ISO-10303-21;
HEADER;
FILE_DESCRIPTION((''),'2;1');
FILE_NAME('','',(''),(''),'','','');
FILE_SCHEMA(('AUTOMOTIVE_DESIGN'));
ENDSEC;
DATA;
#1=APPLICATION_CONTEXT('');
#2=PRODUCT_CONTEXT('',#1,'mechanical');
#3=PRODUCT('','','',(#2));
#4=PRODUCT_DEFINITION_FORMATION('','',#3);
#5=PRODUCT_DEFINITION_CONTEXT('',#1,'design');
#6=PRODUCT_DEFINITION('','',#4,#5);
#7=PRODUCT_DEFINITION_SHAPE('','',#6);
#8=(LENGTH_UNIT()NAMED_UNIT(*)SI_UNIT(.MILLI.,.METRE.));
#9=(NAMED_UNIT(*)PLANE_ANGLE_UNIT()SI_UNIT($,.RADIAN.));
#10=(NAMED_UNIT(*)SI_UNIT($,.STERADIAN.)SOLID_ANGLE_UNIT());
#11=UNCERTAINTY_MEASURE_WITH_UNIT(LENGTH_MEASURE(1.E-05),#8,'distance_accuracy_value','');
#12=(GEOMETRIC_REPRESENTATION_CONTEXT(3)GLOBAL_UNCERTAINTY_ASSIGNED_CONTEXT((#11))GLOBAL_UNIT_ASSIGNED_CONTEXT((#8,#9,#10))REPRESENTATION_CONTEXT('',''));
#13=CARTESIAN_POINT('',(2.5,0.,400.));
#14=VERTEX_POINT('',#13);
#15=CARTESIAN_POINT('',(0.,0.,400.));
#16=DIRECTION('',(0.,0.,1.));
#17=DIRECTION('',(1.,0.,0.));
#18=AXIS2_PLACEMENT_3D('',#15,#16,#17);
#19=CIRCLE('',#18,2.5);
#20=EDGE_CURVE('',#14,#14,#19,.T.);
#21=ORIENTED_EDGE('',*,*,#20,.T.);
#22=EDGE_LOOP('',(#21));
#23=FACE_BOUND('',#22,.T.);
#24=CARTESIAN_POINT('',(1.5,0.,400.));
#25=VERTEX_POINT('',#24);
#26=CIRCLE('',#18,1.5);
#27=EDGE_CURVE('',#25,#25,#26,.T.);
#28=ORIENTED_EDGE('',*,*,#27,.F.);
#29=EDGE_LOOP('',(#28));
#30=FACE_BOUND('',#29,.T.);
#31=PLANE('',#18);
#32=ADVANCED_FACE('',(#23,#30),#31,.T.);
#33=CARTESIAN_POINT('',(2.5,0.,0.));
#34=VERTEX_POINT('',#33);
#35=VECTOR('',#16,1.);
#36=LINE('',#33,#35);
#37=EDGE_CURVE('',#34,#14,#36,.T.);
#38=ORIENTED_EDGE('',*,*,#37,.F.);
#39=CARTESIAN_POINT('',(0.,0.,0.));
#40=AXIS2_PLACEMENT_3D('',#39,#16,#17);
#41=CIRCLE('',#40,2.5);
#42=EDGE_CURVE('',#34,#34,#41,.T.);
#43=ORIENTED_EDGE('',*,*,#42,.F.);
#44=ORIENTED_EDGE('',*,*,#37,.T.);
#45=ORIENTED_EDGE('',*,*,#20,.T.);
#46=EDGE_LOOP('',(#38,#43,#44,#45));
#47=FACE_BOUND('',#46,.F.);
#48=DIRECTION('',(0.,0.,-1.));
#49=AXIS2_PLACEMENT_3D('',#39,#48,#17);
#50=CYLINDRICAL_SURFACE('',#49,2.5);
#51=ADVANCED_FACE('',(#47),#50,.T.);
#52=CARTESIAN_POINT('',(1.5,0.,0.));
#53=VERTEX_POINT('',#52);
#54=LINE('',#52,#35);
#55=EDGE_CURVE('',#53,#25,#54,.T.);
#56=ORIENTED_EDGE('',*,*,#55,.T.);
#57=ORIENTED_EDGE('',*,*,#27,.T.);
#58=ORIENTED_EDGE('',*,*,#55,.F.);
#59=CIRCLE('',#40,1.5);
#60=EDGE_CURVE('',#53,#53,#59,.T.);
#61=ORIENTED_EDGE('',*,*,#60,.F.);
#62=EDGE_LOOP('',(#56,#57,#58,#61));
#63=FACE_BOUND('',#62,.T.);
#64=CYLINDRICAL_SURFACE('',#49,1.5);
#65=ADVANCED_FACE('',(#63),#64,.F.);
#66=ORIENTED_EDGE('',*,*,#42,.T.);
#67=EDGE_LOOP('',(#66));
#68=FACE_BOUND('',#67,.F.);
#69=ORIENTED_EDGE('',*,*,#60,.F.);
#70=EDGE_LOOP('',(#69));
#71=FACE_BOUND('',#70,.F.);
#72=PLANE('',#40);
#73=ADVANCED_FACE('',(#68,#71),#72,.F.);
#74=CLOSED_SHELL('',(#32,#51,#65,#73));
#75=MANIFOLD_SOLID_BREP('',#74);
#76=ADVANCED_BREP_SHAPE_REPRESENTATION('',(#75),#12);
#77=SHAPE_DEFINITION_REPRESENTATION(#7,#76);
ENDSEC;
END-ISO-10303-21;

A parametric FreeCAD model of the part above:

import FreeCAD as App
import Part
import Sketcher

doc = App.newDocument("Part")
body = doc.addObject("PartDesign::Body", "Body")

# Sketch on XY plane
sketch1 = body.newObject("Sketcher::SketchObject", "Sketch")
sketch1.AttachmentSupport = (doc.getObject("XY_Plane"), [""])
sketch1.MapMode = "FlatFace"
sketch1.addGeometry([
    Part.Circle(App.Vector(0, 0, 0), App.Vector(0, 0, 1), 2.5),
    Part.Circle(App.Vector(0, 0, 0), App.Vector(0, 0, 1), 1.5),
], False)
sketch1.addConstraint([
    Sketcher.Constraint("Coincident", 0, 3, -1, 1),
    Sketcher.Constraint("Coincident", 1, 3, -1, 1),
    Sketcher.Constraint("Diameter", 0, 5.0),
    Sketcher.Constraint("Diameter", 1, 3.0),
])
pad1 = body.newObject("PartDesign::Pad", "Pad")
pad1.Profile = sketch1
pad1.Length = 400

doc.recompute()
